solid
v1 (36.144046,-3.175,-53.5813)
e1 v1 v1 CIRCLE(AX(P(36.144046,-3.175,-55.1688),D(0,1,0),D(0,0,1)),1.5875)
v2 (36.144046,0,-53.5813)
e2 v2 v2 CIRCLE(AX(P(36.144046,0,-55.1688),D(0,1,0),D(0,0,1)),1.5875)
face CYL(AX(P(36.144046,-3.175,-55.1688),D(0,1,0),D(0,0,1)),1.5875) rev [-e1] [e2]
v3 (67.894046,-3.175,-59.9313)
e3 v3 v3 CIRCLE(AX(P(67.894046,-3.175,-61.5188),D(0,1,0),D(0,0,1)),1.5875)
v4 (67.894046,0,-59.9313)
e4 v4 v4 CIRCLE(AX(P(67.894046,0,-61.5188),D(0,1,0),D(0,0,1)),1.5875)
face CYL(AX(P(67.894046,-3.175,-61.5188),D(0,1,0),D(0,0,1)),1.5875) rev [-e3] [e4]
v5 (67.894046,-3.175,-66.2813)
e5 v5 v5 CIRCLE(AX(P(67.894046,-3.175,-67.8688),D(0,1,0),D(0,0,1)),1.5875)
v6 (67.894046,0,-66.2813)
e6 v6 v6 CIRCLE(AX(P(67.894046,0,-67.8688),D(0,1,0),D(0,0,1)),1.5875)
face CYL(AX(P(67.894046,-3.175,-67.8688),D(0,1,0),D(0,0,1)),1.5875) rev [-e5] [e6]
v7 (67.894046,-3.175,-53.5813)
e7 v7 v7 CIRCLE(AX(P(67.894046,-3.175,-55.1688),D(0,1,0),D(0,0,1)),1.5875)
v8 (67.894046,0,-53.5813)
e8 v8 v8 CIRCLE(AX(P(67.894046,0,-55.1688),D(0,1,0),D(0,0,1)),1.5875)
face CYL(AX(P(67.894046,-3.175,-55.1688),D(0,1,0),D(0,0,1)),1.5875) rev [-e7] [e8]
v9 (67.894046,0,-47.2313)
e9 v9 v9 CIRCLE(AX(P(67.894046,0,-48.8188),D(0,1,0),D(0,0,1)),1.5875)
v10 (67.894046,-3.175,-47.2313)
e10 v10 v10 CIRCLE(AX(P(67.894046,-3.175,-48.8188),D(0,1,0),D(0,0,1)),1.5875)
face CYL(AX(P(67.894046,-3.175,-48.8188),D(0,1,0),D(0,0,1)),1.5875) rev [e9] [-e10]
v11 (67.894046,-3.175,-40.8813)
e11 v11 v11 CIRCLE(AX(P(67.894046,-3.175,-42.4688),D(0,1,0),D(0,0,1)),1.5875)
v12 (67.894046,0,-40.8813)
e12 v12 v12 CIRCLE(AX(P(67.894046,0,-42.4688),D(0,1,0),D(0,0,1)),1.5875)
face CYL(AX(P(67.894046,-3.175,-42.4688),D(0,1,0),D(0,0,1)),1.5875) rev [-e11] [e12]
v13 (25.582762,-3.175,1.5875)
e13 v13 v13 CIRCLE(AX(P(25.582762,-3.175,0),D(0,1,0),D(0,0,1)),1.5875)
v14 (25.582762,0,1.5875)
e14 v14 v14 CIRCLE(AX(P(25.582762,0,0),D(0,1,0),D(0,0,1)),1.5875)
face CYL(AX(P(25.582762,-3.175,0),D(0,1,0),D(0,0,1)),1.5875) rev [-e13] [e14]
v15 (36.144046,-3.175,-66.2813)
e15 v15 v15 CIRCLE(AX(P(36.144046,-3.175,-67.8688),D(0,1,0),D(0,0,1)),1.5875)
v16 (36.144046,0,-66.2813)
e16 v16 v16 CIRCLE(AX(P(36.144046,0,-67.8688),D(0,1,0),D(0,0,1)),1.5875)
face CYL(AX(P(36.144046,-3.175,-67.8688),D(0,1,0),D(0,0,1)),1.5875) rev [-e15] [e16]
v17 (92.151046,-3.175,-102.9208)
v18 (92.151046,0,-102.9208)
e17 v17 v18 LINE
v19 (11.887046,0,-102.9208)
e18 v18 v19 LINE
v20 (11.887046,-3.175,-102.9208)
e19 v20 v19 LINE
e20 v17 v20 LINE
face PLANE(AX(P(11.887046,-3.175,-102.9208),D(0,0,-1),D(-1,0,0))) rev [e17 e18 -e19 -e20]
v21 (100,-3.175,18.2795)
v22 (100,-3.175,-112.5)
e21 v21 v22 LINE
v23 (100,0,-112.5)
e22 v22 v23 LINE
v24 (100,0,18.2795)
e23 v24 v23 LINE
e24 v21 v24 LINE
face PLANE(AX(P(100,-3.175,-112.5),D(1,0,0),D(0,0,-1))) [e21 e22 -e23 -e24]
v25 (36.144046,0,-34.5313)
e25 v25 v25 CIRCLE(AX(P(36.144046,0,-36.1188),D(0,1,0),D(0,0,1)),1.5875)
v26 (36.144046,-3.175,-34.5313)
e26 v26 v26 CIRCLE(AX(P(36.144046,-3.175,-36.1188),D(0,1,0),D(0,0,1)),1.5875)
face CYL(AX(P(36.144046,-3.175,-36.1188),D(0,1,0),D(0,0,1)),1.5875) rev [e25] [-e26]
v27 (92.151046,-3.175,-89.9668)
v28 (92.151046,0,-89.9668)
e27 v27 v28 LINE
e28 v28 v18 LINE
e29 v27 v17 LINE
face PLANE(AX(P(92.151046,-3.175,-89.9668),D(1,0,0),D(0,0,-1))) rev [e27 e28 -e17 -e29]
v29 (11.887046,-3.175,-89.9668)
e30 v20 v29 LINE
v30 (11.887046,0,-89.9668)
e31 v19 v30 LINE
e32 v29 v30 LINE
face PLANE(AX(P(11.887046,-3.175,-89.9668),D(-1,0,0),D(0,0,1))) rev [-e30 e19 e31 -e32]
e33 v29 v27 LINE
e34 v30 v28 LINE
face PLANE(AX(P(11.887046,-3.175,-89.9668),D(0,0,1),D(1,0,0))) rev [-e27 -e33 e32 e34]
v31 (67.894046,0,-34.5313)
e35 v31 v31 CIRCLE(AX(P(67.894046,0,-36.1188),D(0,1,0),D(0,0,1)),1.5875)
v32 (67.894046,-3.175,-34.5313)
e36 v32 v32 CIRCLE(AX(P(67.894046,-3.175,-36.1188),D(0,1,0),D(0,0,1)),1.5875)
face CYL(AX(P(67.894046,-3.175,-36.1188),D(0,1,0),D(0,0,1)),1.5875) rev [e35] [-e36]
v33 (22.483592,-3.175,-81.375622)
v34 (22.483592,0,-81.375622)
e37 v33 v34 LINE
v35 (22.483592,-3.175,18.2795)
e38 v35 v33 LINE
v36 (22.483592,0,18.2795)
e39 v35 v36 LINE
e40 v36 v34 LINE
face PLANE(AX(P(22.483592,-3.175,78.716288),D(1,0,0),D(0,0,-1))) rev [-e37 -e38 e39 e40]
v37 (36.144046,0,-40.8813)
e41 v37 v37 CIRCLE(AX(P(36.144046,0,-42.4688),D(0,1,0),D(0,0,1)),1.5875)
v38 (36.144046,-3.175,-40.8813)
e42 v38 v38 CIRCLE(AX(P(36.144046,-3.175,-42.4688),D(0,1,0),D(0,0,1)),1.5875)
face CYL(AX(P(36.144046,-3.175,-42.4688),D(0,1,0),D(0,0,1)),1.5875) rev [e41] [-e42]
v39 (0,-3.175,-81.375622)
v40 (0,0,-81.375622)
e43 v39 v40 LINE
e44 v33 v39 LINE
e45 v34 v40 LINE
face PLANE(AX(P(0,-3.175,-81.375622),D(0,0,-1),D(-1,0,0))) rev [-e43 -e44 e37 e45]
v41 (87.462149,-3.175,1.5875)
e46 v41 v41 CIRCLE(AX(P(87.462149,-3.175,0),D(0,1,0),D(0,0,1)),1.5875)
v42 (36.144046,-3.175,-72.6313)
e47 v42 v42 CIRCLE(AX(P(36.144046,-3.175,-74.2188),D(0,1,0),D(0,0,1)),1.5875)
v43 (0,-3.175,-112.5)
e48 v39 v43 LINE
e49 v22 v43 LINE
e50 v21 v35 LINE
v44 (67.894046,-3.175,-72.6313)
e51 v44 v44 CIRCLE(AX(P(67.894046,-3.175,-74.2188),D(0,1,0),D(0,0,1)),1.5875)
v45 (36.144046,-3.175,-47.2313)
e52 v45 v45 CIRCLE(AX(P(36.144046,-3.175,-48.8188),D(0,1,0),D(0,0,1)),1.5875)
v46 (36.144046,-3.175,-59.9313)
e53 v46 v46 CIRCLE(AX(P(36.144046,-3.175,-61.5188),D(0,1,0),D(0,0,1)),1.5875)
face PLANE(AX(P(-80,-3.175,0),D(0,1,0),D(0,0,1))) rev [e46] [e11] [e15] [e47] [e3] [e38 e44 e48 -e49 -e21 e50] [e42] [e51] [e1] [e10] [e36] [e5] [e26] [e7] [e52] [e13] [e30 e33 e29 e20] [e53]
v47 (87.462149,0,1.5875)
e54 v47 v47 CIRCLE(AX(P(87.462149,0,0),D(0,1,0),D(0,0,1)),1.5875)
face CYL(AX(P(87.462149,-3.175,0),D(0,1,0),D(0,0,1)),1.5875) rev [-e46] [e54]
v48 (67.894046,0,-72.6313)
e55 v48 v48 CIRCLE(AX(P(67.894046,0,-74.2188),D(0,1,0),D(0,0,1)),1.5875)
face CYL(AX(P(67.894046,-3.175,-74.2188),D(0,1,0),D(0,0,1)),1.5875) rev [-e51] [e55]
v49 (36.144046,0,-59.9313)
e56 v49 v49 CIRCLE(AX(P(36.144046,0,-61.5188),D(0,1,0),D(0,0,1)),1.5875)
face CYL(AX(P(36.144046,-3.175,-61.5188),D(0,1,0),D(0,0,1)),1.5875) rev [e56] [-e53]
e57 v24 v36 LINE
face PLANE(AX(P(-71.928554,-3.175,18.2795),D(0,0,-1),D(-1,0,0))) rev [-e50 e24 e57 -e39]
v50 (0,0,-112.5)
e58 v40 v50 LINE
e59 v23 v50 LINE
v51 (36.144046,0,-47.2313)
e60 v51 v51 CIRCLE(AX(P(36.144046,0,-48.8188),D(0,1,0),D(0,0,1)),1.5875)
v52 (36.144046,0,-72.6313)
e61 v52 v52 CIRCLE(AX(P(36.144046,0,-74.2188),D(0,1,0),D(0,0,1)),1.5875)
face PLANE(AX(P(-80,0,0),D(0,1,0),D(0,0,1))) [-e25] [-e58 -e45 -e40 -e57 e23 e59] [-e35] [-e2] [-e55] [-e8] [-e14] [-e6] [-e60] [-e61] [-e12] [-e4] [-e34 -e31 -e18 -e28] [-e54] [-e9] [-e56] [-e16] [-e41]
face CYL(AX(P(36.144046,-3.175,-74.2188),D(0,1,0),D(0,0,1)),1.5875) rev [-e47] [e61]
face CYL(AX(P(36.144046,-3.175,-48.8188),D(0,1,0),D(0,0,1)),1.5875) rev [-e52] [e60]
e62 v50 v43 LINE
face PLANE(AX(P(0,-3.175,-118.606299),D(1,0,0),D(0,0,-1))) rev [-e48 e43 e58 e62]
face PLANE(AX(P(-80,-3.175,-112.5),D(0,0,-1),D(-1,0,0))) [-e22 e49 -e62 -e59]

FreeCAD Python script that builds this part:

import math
import FreeCAD as App
import Part
import Sketcher
Q = App.Units.Quantity

doc = App.newDocument("Part")
body = doc.addObject("PartDesign::Body", "Body")

# Sketch on XZ plane
sketch1 = doc.addObject("Sketcher::SketchObject", "Sketch")
body.addObject(sketch1)
sketch1.AttachmentSupport = (doc.XZ_Plane, [""])
sketch1.MapMode = "FlatFace"
sketch1.addGeometry([
    Part.LineSegment(App.Vector(100, -112.5, 0), App.Vector(-80, -112.5, 0)),
    Part.ArcOfCircle(Part.Circle(App.Vector(-80, 0, 0), App.Vector(0, 0, 1), 112.5), math.radians(90), math.radians(270)),
    Part.LineSegment(App.Vector(-80, 112.5, 0), App.Vector(100, 112.5, 0)),
    Part.LineSegment(App.Vector(100, 112.5, 0), App.Vector(100, -112.5, 0)),
], False)
sketch1.addConstraint([
    Sketcher.Constraint("Tangent", 0, 2, 1, 2),
    Sketcher.Constraint("Tangent", 1, 1, 2, 1),
    Sketcher.Constraint("Coincident", 2, 2, 3, 1),
    Sketcher.Constraint("Coincident", 3, 2, 0, 1),
    Sketcher.Constraint("Horizontal", 0),
    Sketcher.Constraint("Horizontal", 2),
    Sketcher.Constraint("Vertical", 3),
    Sketcher.Constraint("PointOnObject", 1, 3, -1),
    Sketcher.Constraint("Radius", 1, 112.5),
    Sketcher.Constraint("DistanceX", 0, 2, 0, 1, 180.0),
    Sketcher.Constraint("DistanceX", 1, 3, -1, 1, 80.0),
])
pad1 = doc.addObject("PartDesign::Pad", "Pad")
body.addObject(pad1)
pad1.Profile = sketch1
pad1.Length = Q("0.125 in")

# Sketch on XZ plane
sketch2 = doc.addObject("Sketcher::SketchObject", "Sketch001")
body.addObject(sketch2)
sketch2.AttachmentSupport = (doc.XZ_Plane, [""])
sketch2.MapMode = "FlatFace"
sketch2.addGeometry([
    Part.Circle(App.Vector(36.144046, 74.2188, 0), App.Vector(0, 0, 1), 1.5875),  # 0
    Part.Circle(App.Vector(36.144046, 67.8688, 0), App.Vector(0, 0, 1), 1.5875),  # 1
    Part.Circle(App.Vector(36.144046, 61.5188, 0), App.Vector(0, 0, 1), 1.5875),  # 2
    Part.Circle(App.Vector(36.144046, 55.1688, 0), App.Vector(0, 0, 1), 1.5875),  # 3
    Part.Circle(App.Vector(36.144046, 48.8188, 0), App.Vector(0, 0, 1), 1.5875),  # 4
    Part.Circle(App.Vector(36.144046, 42.4688, 0), App.Vector(0, 0, 1), 1.5875),  # 5
    Part.Circle(App.Vector(36.144046, 36.1188, 0), App.Vector(0, 0, 1), 1.5875),  # 6
    Part.Circle(App.Vector(67.894046, 74.2188, 0), App.Vector(0, 0, 1), 1.5875),  # 7
    Part.Circle(App.Vector(67.894046, 67.8688, 0), App.Vector(0, 0, 1), 1.5875),  # 8
    Part.Circle(App.Vector(67.894046, 61.5188, 0), App.Vector(0, 0, 1), 1.5875),  # 9
    Part.Circle(App.Vector(67.894046, 55.1688, 0), App.Vector(0, 0, 1), 1.5875),  # 10
    Part.Circle(App.Vector(67.894046, 48.8188, 0), App.Vector(0, 0, 1), 1.5875),  # 11
    Part.Circle(App.Vector(67.894046, 42.4688, 0), App.Vector(0, 0, 1), 1.5875),  # 12
    Part.Circle(App.Vector(67.894046, 36.1188, 0), App.Vector(0, 0, 1), 1.5875),  # 13
    Part.Circle(App.Vector(36.144046, -74.2188, 0), App.Vector(0, 0, 1), 1.5875),  # 14
    Part.Circle(App.Vector(36.144046, -67.8688, 0), App.Vector(0, 0, 1), 1.5875),  # 15
    Part.Circle(App.Vector(36.144046, -61.5188, 0), App.Vector(0, 0, 1), 1.5875),  # 16
    Part.Circle(App.Vector(36.144046, -55.1688, 0), App.Vector(0, 0, 1), 1.5875),  # 17
    Part.Circle(App.Vector(36.144046, -48.8188, 0), App.Vector(0, 0, 1), 1.5875),  # 18
    Part.Circle(App.Vector(36.144046, -42.4688, 0), App.Vector(0, 0, 1), 1.5875),  # 19
    Part.Circle(App.Vector(36.144046, -36.1188, 0), App.Vector(0, 0, 1), 1.5875),  # 20
    Part.Circle(App.Vector(67.894046, -74.2188, 0), App.Vector(0, 0, 1), 1.5875),  # 21
    Part.Circle(App.Vector(67.894046, -67.8688, 0), App.Vector(0, 0, 1), 1.5875),  # 22
    Part.Circle(App.Vector(67.894046, -61.5188, 0), App.Vector(0, 0, 1), 1.5875),  # 23
    Part.Circle(App.Vector(67.894046, -55.1688, 0), App.Vector(0, 0, 1), 1.5875),  # 24
    Part.Circle(App.Vector(67.894046, -48.8188, 0), App.Vector(0, 0, 1), 1.5875),  # 25
    Part.Circle(App.Vector(67.894046, -42.4688, 0), App.Vector(0, 0, 1), 1.5875),  # 26
    Part.Circle(App.Vector(67.894046, -36.1188, 0), App.Vector(0, 0, 1), 1.5875),  # 27
    Part.LineSegment(App.Vector(11.887046, 89.9668, 0), App.Vector(11.887046, 102.9208, 0)),  # 28
    Part.LineSegment(App.Vector(11.887046, 102.9208, 0), App.Vector(92.151046, 102.9208, 0)),  # 29
    Part.LineSegment(App.Vector(92.151046, 102.9208, 0), App.Vector(92.151046, 89.9668, 0)),  # 30
    Part.LineSegment(App.Vector(92.151046, 89.9668, 0), App.Vector(11.887046, 89.9668, 0)),  # 31
    Part.LineSegment(App.Vector(11.887046, -102.9208, 0), App.Vector(11.887046, -89.9668, 0)),  # 32
    Part.LineSegment(App.Vector(11.887046, -89.9668, 0), App.Vector(92.151046, -89.9668, 0)),  # 33
    Part.LineSegment(App.Vector(92.151046, -89.9668, 0), App.Vector(92.151046, -102.9208, 0)),  # 34
    Part.LineSegment(App.Vector(92.151046, -102.9208, 0), App.Vector(11.887046, -102.9208, 0)),  # 35
], False)
sketch2.addConstraint([
    Sketcher.Constraint("Coincident", 28, 2, 29, 1),
    Sketcher.Constraint("Coincident", 29, 2, 30, 1),
    Sketcher.Constraint("Coincident", 30, 2, 31, 1),
    Sketcher.Constraint("Coincident", 31, 2, 28, 1),
    Sketcher.Constraint("Coincident", 32, 2, 33, 1),
    Sketcher.Constraint("Coincident", 33, 2, 34, 1),
    Sketcher.Constraint("Coincident", 34, 2, 35, 1),
    Sketcher.Constraint("Coincident", 35, 2, 32, 1),
    Sketcher.Constraint("Vertical", 28),
    Sketcher.Constraint("Horizontal", 29),
    Sketcher.Constraint("Vertical", 30),
    Sketcher.Constraint("Horizontal", 31),
    Sketcher.Constraint("Vertical", 32),
    Sketcher.Constraint("Horizontal", 33),
    Sketcher.Constraint("Vertical", 34),
    Sketcher.Constraint("Horizontal", 35),
    Sketcher.Constraint("Equal", 0, 1),
    Sketcher.Constraint("Equal", 1, 2),
    Sketcher.Constraint("Equal", 2, 3),
    Sketcher.Constraint("Equal", 3, 4),
    Sketcher.Constraint("Equal", 4, 5),
    Sketcher.Constraint("Equal", 5, 6),
    Sketcher.Constraint("Equal", 6, 7),
    Sketcher.Constraint("Equal", 7, 8),
    Sketcher.Constraint("Equal", 8, 9),
    Sketcher.Constraint("Equal", 9, 10),
    Sketcher.Constraint("Equal", 10, 11),
    Sketcher.Constraint("Equal", 11, 12),
    Sketcher.Constraint("Equal", 12, 13),
    Sketcher.Constraint("Equal", 13, 14),
    Sketcher.Constraint("Equal", 14, 15),
    Sketcher.Constraint("Equal", 15, 16),
    Sketcher.Constraint("Equal", 16, 17),
    Sketcher.Constraint("Equal", 17, 18),
    Sketcher.Constraint("Equal", 18, 19),
    Sketcher.Constraint("Equal", 19, 20),
    Sketcher.Constraint("Equal", 20, 21),
    Sketcher.Constraint("Equal", 21, 22),
    Sketcher.Constraint("Equal", 22, 23),
    Sketcher.Constraint("Equal", 23, 24),
    Sketcher.Constraint("Equal", 24, 25),
    Sketcher.Constraint("Equal", 25, 26),
    Sketcher.Constraint("Equal", 26, 27),
    Sketcher.Constraint("Symmetric", 0, 3, 14, 3, -1),
    Sketcher.Constraint("Symmetric", 1, 3, 15, 3, -1),
    Sketcher.Constraint("Symmetric", 2, 3, 16, 3, -1),
    Sketcher.Constraint("Symmetric", 3, 3, 17, 3, -1),
    Sketcher.Constraint("Symmetric", 4, 3, 18, 3, -1),
    Sketcher.Constraint("Symmetric", 5, 3, 19, 3, -1),
    Sketcher.Constraint("Symmetric", 6, 3, 20, 3, -1),
    Sketcher.Constraint("Symmetric", 7, 3, 21, 3, -1),
    Sketcher.Constraint("Symmetric", 8, 3, 22, 3, -1),
    Sketcher.Constraint("Symmetric", 9, 3, 23, 3, -1),
    Sketcher.Constraint("Symmetric", 10, 3, 24, 3, -1),
    Sketcher.Constraint("Symmetric", 11, 3, 25, 3, -1),
    Sketcher.Constraint("Symmetric", 12, 3, 26, 3, -1),
    Sketcher.Constraint("Symmetric", 13, 3, 27, 3, -1),
    Sketcher.Constraint("Symmetric", 31, 2, 32, 2, -1),
    Sketcher.Constraint("Symmetric", 29, 2, 34, 2, -1),
    Sketcher.Constraint("Horizontal", 0, 3, 7, 3),
    Sketcher.Constraint("Horizontal", 1, 3, 8, 3),
    Sketcher.Constraint("Horizontal", 2, 3, 9, 3),
    Sketcher.Constraint("Horizontal", 3, 3, 10, 3),
    Sketcher.Constraint("Horizontal", 4, 3, 11, 3),
    Sketcher.Constraint("Horizontal", 5, 3, 12, 3),
    Sketcher.Constraint("Horizontal", 6, 3, 13, 3),
    Sketcher.Constraint("Vertical", 0, 3, 1, 3),
    Sketcher.Constraint("Vertical", 1, 3, 2, 3),
    Sketcher.Constraint("Vertical", 2, 3, 3, 3),
    Sketcher.Constraint("Vertical", 3, 3, 4, 3),
    Sketcher.Constraint("Vertical", 4, 3, 5, 3),
    Sketcher.Constraint("Vertical", 5, 3, 6, 3),
    Sketcher.Constraint("Vertical", 7, 3, 8, 3),
    Sketcher.Constraint("Vertical", 8, 3, 9, 3),
    Sketcher.Constraint("Vertical", 9, 3, 10, 3),
    Sketcher.Constraint("Vertical", 10, 3, 11, 3),
    Sketcher.Constraint("Vertical", 11, 3, 12, 3),
    Sketcher.Constraint("Vertical", 12, 3, 13, 3),
    Sketcher.Constraint("Diameter", 0, Q("0.125 in")),
    Sketcher.Constraint("DistanceY", 4, 3, 0, 3, Q("1 in")),
    Sketcher.Constraint("DistanceY", 5, 3, 1, 3, Q("1 in")),
    Sketcher.Constraint("DistanceY", 6, 3, 2, 3, Q("1 in")),
    Sketcher.Constraint("DistanceX", 29, 1, 29, 2, Q("3.16 in")),
    Sketcher.Constraint("DistanceY", 28, 1, 28, 2, Q("0.51 in")),
    Sketcher.Constraint("DistanceY", 2, 3, 0, 3, Q("0.5 in")),
    Sketcher.Constraint("DistanceY", 3, 3, 1, 3, Q("0.5 in")),
    Sketcher.Constraint("DistanceY", 1, 3, 0, 3, Q("0.25 in")),
    Sketcher.Constraint("DistanceX", 0, 3, 7, 3, Q("1.25 in")),
    Sketcher.Constraint("DistanceY", 0, 3, 28, 2, Q("1.13 in")),
    Sketcher.Constraint("DistanceY", -1, 1, 0, 3, Q("2.922 in")),
    Sketcher.Constraint("DistanceX", 28, 2, 0, 3, Q("0.955 in")),
    Sketcher.Constraint("DistanceX", -1, 1, 0, 3, 36.144046),
])
pocket1 = doc.addObject("PartDesign::Pocket", "Pocket")
body.addObject(pocket1)
pocket1.Profile = sketch2
pocket1.Type = "ThroughAll"
pocket1.Reversed = True

# Sketch on XZ plane
sketch3 = doc.addObject("Sketcher::SketchObject", "Sketch002")
body.addObject(sketch3)
sketch3.AttachmentSupport = (doc.XZ_Plane, [""])
sketch3.MapMode = "FlatFace"
sketch3.addGeometry([
    Part.Circle(App.Vector(-50.166143, 0, 0), App.Vector(0, 0, 1), 1.5875),  # 0
    Part.Circle(App.Vector(25.582762, 0, 0), App.Vector(0, 0, 1), 1.5875),  # 1
    Part.Circle(App.Vector(87.462149, 0, 0), App.Vector(0, 0, 1), 1.5875),  # 2
    Part.LineSegment(App.Vector(-37.466143, -69.215, 0), App.Vector(-37.466143, 69.215, 0)),  # 3
    Part.LineSegment(App.Vector(-37.466143, 69.215, 0), App.Vector(9.523857, 69.215, 0)),  # 4
    Part.LineSegment(App.Vector(9.523857, 69.215, 0), App.Vector(9.523857, -69.215, 0)),  # 5
    Part.LineSegment(App.Vector(9.523857, -69.215, 0), App.Vector(-37.466143, -69.215, 0)),  # 6
], False)
sketch3.addConstraint([
    Sketcher.Constraint("Coincident", 3, 2, 4, 1),
    Sketcher.Constraint("Coincident", 4, 2, 5, 1),
    Sketcher.Constraint("Coincident", 5, 2, 6, 1),
    Sketcher.Constraint("Coincident", 6, 2, 3, 1),
    Sketcher.Constraint("Vertical", 3),
    Sketcher.Constraint("Horizontal", 4),
    Sketcher.Constraint("Vertical", 5),
    Sketcher.Constraint("Horizontal", 6),
    Sketcher.Constraint("Equal", 0, 1),
    Sketcher.Constraint("Equal", 1, 2),
    Sketcher.Constraint("PointOnObject", 0, 3, -1),
    Sketcher.Constraint("PointOnObject", 1, 3, -1),
    Sketcher.Constraint("PointOnObject", 2, 3, -1),
    Sketcher.Constraint("Diameter", 0, Q("0.125 in")),
    Sketcher.Constraint("DistanceX", 4, 1, 4, 2, Q("1.85 in")),
    Sketcher.Constraint("DistanceY", 3, 1, 3, 2, Q("5.45 in")),
    Sketcher.Constraint("DistanceX", 0, 3, 3, 2, Q("0.5 in")),
    Sketcher.Constraint("DistanceY", -1, 1, 3, 2, Q("2.725 in")),
    Sketcher.Constraint("DistanceX", -1, 1, 1, 3, 25.582762),
    Sketcher.Constraint("DistanceX", -1, 1, 2, 3, 87.462149),
    Sketcher.Constraint("DistanceX", 0, 3, -1, 1, 50.166143),
])
pocket2 = doc.addObject("PartDesign::Pocket", "Pocket001")
body.addObject(pocket2)
pocket2.Profile = sketch3
pocket2.Type = "ThroughAll"
pocket2.Reversed = True

# Sketch on XZ plane
sketch4 = doc.addObject("Sketcher::SketchObject", "Sketch003")
body.addObject(sketch4)
sketch4.AttachmentSupport = (doc.XZ_Plane, [""])
sketch4.MapMode = "FlatFace"
sketch4.addGeometry([
    Part.LineSegment(App.Vector(-167.0966, -25.4, 0), App.Vector(-229.776687, -25.4, 0)),
    Part.LineSegment(App.Vector(-229.776687, -25.4, 0), App.Vector(-229.776687, 25.4, 0)),
    Part.LineSegment(App.Vector(-229.776687, 25.4, 0), App.Vector(-167.0966, 25.4, 0)),
    Part.ArcOfCircle(Part.Circle(App.Vector(-167.0966, 0, 0), App.Vector(0, 0, 1), 25.4), math.radians(-90), math.radians(90)),
], False)
sketch4.addConstraint([
    Sketcher.Constraint("Coincident", 0, 2, 1, 1),
    Sketcher.Constraint("Coincident", 1, 2, 2, 1),
    Sketcher.Constraint("Tangent", 2, 2, 3, 2),
    Sketcher.Constraint("Tangent", 3, 1, 0, 1),
    Sketcher.Constraint("Horizontal", 0),
    Sketcher.Constraint("Vertical", 1),
    Sketcher.Constraint("Horizontal", 2),
    Sketcher.Constraint("PointOnObject", 3, 3, -1),
    Sketcher.Constraint("Radius", 3, Q("1 in")),
    Sketcher.Constraint("DistanceX", 3, 3, -1, 1, 167.0966),
    Sketcher.Constraint("DistanceX", 0, 2, 0, 1, 62.680087),
])
pocket3 = doc.addObject("PartDesign::Pocket", "Pocket002")
body.addObject(pocket3)
pocket3.Profile = sketch4
pocket3.Type = "ThroughAll"
pocket3.Reversed = True

# Sketch on XZ plane
sketch5 = doc.addObject("Sketcher::SketchObject", "Sketch004")
body.addObject(sketch5)
sketch5.AttachmentSupport = (doc.XZ_Plane, [""])
sketch5.MapMode = "FlatFace"
sketch5.addGeometry([
    Part.LineSegment(App.Vector(-202.496068, -118.606299, 0), App.Vector(-202.496068, 122.329366, 0)),  # 0
    Part.LineSegment(App.Vector(-202.496068, 122.329366, 0), App.Vector(0, 122.329366, 0)),  # 1
    Part.LineSegment(App.Vector(0, 122.329366, 0), App.Vector(0, 78.716288, 0)),  # 2
    Part.LineSegment(App.Vector(0, 78.716288, 0), App.Vector(22.483592, 78.716288, 0)),  # 3
    Part.LineSegment(App.Vector(22.483592, 78.716288, 0), App.Vector(22.483592, -81.375622, 0)),  # 4
    Part.LineSegment(App.Vector(22.483592, -81.375622, 0), App.Vector(0, -81.375622, 0)),  # 5
    Part.LineSegment(App.Vector(0, -81.375622, 0), App.Vector(0, -118.606299, 0)),  # 6
    Part.LineSegment(App.Vector(0, -118.606299, 0), App.Vector(-202.496068, -118.606299, 0)),  # 7
], False)
sketch5.addConstraint([
    Sketcher.Constraint("Coincident", 0, 2, 1, 1),
    Sketcher.Constraint("Coincident", 1, 2, 2, 1),
    Sketcher.Constraint("Coincident", 2, 2, 3, 1),
    Sketcher.Constraint("Coincident", 3, 2, 4, 1),
    Sketcher.Constraint("Coincident", 4, 2, 5, 1),
    Sketcher.Constraint("Coincident", 5, 2, 6, 1),
    Sketcher.Constraint("Coincident", 6, 2, 7, 1),
    Sketcher.Constraint("Coincident", 7, 2, 0, 1),
    Sketcher.Constraint("Vertical", 0),
    Sketcher.Constraint("Horizontal", 1),
    Sketcher.Constraint("Vertical", 2),
    Sketcher.Constraint("Horizontal", 3),
    Sketcher.Constraint("Vertical", 4),
    Sketcher.Constraint("Horizontal", 5),
    Sketcher.Constraint("Vertical", 6),
    Sketcher.Constraint("Horizontal", 7),
    Sketcher.Constraint("PointOnObject", 1, 2, -2),
    Sketcher.Constraint("PointOnObject", 5, 2, -2),
    Sketcher.Constraint("DistanceX", 1, 1, 1, 2, 202.496068),
    Sketcher.Constraint("DistanceY", 2, 2, 2, 1, 43.613078),
    Sketcher.Constraint("DistanceY", 4, 2, 4, 1, 160.09191),
    Sketcher.Constraint("DistanceY", 6, 2, -1, 1, 118.606299),
    Sketcher.Constraint("DistanceX", 3, 1, 3, 2, 22.483592),
    Sketcher.Constraint("DistanceY", 0, 1, 0, 2, 240.935665),
])
pocket4 = doc.addObject("PartDesign::Pocket", "Pocket003")
body.addObject(pocket4)
pocket4.Profile = sketch5
pocket4.Type = "ThroughAll"
pocket4.Reversed = True

# Sketch on XZ plane
sketch6 = doc.addObject("Sketcher::SketchObject", "Sketch005")
body.addObject(sketch6)
sketch6.AttachmentSupport = (doc.XZ_Plane, [""])
sketch6.MapMode = "FlatFace"
sketch6.addGeometry([
    Part.LineSegment(App.Vector(-71.928554, 18.2795, 0), App.Vector(-71.928554, 140.540222, 0)),
    Part.LineSegment(App.Vector(-71.928554, 140.540222, 0), App.Vector(148.982373, 140.540222, 0)),
    Part.LineSegment(App.Vector(148.982373, 140.540222, 0), App.Vector(148.982373, 18.2795, 0)),
    Part.LineSegment(App.Vector(148.982373, 18.2795, 0), App.Vector(-71.928554, 18.2795, 0)),
], False)
sketch6.addConstraint([
    Sketcher.Constraint("Coincident", 0, 2, 1, 1),
    Sketcher.Constraint("Coincident", 1, 2, 2, 1),
    Sketcher.Constraint("Coincident", 2, 2, 3, 1),
    Sketcher.Constraint("Coincident", 3, 2, 0, 1),
    Sketcher.Constraint("Vertical", 0),
    Sketcher.Constraint("Horizontal", 1),
    Sketcher.Constraint("Vertical", 2),
    Sketcher.Constraint("Horizontal", 3),
    Sketcher.Constraint("DistanceY", -1, 1, 2, 2, 18.2795),
    Sketcher.Constraint("DistanceX", 1, 1, 1, 2, 220.910927),
    Sketcher.Constraint("DistanceY", 0, 1, 0, 2, 122.260722),
    Sketcher.Constraint("DistanceX", 0, 2, -1, 1, 71.928554),
])
pocket5 = doc.addObject("PartDesign::Pocket", "Pocket004")
body.addObject(pocket5)
pocket5.Profile = sketch6
pocket5.Type = "ThroughAll"
pocket5.Reversed = True

doc.recompute()
